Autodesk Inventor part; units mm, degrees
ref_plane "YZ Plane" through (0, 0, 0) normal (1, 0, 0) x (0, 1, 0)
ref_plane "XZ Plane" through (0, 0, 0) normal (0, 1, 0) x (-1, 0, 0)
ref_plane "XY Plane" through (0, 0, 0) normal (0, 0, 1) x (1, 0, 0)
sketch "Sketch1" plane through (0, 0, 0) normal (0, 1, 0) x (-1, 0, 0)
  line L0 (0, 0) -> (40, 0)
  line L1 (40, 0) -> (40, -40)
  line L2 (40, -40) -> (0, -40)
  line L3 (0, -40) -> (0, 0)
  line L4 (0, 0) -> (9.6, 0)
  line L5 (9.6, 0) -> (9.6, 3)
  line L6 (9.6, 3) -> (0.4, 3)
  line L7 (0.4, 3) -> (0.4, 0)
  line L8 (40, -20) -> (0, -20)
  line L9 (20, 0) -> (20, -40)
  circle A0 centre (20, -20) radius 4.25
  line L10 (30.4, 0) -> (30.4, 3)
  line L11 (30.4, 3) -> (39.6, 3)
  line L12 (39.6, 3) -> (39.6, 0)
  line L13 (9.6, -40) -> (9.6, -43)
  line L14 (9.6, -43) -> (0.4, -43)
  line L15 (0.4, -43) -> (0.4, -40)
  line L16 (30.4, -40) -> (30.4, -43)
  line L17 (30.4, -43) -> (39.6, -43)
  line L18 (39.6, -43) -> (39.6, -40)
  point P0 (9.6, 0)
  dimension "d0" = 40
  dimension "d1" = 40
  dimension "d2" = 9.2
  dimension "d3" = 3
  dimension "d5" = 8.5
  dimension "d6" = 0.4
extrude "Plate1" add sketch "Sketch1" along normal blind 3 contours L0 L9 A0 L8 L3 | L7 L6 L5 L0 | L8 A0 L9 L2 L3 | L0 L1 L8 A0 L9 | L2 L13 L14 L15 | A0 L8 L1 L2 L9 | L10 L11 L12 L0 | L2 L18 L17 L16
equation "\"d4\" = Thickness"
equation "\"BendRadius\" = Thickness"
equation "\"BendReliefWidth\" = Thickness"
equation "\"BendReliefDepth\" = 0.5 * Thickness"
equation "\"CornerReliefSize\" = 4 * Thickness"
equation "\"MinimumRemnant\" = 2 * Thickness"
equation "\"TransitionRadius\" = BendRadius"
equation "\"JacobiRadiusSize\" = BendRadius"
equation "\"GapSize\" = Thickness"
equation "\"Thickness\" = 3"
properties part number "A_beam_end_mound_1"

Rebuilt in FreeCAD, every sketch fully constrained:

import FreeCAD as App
import Part
import Sketcher
Q = App.Units.Quantity


def add_polygon(sketch, points):
    """Adds a closed chain of lines whose ends are joined by coincident constraints."""
    first, n = sketch.GeometryCount, len(points)
    for a, b in zip(points, points[1:] + points[:1]):
        sketch.addGeometry(Part.LineSegment(App.Vector(*a, 0), App.Vector(*b, 0)), False)
    for i in range(n):
        sketch.addConstraint(Sketcher.Constraint("Coincident", first + i, 2, first + (i + 1) % n, 1))

doc = App.newDocument("Part")
body = doc.addObject("PartDesign::Body", "Body")

# Sketch on XZ plane
sketch1 = doc.addObject("Sketcher::SketchObject", "Sketch")
body.addObject(sketch1)
sketch1.AttachmentSupport = (doc.XZ_Plane, [""])
sketch1.MapMode = "FlatFace"
add_polygon(sketch1, [(-0.4, 0), (0, 0), (0, -40), (-0.4, -40), (-0.4, -43), (-9.6, -43), (-9.6, -40), (-30.4, -40), (-30.4, -43), (-39.6, -43), (-39.6, -40), (-40, -40), (-40, 0), (-39.6, 0), (-39.6, 3), (-30.4, 3), (-30.4, 0), (-9.6, 0), (-9.6, 3), (-0.4, 3)])  # lines 0-19
sketch1.addGeometry(Part.Circle(App.Vector(-20, -20, 0), App.Vector(0, 0, 1), 4.25), False)  # 20
sketch1.addConstraint([
    Sketcher.Constraint("Horizontal", 0),
    Sketcher.Constraint("Vertical", 1),
    Sketcher.Constraint("Horizontal", 2),
    Sketcher.Constraint("Vertical", 3),
    Sketcher.Constraint("Horizontal", 4),
    Sketcher.Constraint("Vertical", 5),
    Sketcher.Constraint("Horizontal", 6),
    Sketcher.Constraint("Vertical", 7),
    Sketcher.Constraint("Horizontal", 8),
    Sketcher.Constraint("Vertical", 9),
    Sketcher.Constraint("Horizontal", 10),
    Sketcher.Constraint("Vertical", 11),
    Sketcher.Constraint("Horizontal", 12),
    Sketcher.Constraint("Vertical", 13),
    Sketcher.Constraint("Horizontal", 14),
    Sketcher.Constraint("Vertical", 15),
    Sketcher.Constraint("Horizontal", 16),
    Sketcher.Constraint("Vertical", 17),
    Sketcher.Constraint("Horizontal", 18),
    Sketcher.Constraint("Vertical", 19),
    Sketcher.Constraint("Coincident", 0, 2, -1, 1),
    Sketcher.Constraint("PointOnObject", 11, 2, -1),
    Sketcher.Constraint("PointOnObject", 15, 2, -1),
    Sketcher.Constraint("Horizontal", 2, 2, 5, 2),
    Sketcher.Constraint("Horizontal", 4, 2, 7, 2),
    Sketcher.Constraint("Horizontal", 6, 2, 9, 2),
    Sketcher.Constraint("Horizontal", 14, 2, 17, 2),
    Sketcher.Constraint("Vertical", 9, 2, 12, 2),
    Sketcher.Constraint("Vertical", 7, 2, 14, 2),
    Sketcher.Constraint("Vertical", 5, 2, 16, 2),
    Sketcher.Constraint("Vertical", 3, 2, 18, 2),
    Sketcher.Constraint("Equal", 4, 8),
    Sketcher.Constraint("Equal", 2, 10),
    Sketcher.Constraint("Equal", 9, 13),
    Sketcher.Constraint("Diameter", 20, Q("8.5 mm")),
    Sketcher.Constraint("DistanceY", 1, 2, 1, 1, Q("40 mm")),
    Sketcher.Constraint("DistanceY", 3, 2, 3, 1, Q("3 mm")),
    Sketcher.Constraint("DistanceX", 0, 1, 0, 2, Q("0.4 mm")),
    Sketcher.Constraint("DistanceX", 4, 2, 4, 1, Q("9.2 mm")),
    Sketcher.Constraint("DistanceX", 10, 2, -1, 1, Q("40 mm")),
    Sketcher.Constraint("DistanceX", 20, 3, -1, 1, Q("20 mm")),
    Sketcher.Constraint("DistanceY", 20, 3, -1, 1, Q("20 mm")),
])
pad1 = doc.addObject("PartDesign::Pad", "Pad")
body.addObject(pad1)
pad1.Profile = sketch1
pad1.Length = 3
pad1.Reversed = True

doc.recompute()
